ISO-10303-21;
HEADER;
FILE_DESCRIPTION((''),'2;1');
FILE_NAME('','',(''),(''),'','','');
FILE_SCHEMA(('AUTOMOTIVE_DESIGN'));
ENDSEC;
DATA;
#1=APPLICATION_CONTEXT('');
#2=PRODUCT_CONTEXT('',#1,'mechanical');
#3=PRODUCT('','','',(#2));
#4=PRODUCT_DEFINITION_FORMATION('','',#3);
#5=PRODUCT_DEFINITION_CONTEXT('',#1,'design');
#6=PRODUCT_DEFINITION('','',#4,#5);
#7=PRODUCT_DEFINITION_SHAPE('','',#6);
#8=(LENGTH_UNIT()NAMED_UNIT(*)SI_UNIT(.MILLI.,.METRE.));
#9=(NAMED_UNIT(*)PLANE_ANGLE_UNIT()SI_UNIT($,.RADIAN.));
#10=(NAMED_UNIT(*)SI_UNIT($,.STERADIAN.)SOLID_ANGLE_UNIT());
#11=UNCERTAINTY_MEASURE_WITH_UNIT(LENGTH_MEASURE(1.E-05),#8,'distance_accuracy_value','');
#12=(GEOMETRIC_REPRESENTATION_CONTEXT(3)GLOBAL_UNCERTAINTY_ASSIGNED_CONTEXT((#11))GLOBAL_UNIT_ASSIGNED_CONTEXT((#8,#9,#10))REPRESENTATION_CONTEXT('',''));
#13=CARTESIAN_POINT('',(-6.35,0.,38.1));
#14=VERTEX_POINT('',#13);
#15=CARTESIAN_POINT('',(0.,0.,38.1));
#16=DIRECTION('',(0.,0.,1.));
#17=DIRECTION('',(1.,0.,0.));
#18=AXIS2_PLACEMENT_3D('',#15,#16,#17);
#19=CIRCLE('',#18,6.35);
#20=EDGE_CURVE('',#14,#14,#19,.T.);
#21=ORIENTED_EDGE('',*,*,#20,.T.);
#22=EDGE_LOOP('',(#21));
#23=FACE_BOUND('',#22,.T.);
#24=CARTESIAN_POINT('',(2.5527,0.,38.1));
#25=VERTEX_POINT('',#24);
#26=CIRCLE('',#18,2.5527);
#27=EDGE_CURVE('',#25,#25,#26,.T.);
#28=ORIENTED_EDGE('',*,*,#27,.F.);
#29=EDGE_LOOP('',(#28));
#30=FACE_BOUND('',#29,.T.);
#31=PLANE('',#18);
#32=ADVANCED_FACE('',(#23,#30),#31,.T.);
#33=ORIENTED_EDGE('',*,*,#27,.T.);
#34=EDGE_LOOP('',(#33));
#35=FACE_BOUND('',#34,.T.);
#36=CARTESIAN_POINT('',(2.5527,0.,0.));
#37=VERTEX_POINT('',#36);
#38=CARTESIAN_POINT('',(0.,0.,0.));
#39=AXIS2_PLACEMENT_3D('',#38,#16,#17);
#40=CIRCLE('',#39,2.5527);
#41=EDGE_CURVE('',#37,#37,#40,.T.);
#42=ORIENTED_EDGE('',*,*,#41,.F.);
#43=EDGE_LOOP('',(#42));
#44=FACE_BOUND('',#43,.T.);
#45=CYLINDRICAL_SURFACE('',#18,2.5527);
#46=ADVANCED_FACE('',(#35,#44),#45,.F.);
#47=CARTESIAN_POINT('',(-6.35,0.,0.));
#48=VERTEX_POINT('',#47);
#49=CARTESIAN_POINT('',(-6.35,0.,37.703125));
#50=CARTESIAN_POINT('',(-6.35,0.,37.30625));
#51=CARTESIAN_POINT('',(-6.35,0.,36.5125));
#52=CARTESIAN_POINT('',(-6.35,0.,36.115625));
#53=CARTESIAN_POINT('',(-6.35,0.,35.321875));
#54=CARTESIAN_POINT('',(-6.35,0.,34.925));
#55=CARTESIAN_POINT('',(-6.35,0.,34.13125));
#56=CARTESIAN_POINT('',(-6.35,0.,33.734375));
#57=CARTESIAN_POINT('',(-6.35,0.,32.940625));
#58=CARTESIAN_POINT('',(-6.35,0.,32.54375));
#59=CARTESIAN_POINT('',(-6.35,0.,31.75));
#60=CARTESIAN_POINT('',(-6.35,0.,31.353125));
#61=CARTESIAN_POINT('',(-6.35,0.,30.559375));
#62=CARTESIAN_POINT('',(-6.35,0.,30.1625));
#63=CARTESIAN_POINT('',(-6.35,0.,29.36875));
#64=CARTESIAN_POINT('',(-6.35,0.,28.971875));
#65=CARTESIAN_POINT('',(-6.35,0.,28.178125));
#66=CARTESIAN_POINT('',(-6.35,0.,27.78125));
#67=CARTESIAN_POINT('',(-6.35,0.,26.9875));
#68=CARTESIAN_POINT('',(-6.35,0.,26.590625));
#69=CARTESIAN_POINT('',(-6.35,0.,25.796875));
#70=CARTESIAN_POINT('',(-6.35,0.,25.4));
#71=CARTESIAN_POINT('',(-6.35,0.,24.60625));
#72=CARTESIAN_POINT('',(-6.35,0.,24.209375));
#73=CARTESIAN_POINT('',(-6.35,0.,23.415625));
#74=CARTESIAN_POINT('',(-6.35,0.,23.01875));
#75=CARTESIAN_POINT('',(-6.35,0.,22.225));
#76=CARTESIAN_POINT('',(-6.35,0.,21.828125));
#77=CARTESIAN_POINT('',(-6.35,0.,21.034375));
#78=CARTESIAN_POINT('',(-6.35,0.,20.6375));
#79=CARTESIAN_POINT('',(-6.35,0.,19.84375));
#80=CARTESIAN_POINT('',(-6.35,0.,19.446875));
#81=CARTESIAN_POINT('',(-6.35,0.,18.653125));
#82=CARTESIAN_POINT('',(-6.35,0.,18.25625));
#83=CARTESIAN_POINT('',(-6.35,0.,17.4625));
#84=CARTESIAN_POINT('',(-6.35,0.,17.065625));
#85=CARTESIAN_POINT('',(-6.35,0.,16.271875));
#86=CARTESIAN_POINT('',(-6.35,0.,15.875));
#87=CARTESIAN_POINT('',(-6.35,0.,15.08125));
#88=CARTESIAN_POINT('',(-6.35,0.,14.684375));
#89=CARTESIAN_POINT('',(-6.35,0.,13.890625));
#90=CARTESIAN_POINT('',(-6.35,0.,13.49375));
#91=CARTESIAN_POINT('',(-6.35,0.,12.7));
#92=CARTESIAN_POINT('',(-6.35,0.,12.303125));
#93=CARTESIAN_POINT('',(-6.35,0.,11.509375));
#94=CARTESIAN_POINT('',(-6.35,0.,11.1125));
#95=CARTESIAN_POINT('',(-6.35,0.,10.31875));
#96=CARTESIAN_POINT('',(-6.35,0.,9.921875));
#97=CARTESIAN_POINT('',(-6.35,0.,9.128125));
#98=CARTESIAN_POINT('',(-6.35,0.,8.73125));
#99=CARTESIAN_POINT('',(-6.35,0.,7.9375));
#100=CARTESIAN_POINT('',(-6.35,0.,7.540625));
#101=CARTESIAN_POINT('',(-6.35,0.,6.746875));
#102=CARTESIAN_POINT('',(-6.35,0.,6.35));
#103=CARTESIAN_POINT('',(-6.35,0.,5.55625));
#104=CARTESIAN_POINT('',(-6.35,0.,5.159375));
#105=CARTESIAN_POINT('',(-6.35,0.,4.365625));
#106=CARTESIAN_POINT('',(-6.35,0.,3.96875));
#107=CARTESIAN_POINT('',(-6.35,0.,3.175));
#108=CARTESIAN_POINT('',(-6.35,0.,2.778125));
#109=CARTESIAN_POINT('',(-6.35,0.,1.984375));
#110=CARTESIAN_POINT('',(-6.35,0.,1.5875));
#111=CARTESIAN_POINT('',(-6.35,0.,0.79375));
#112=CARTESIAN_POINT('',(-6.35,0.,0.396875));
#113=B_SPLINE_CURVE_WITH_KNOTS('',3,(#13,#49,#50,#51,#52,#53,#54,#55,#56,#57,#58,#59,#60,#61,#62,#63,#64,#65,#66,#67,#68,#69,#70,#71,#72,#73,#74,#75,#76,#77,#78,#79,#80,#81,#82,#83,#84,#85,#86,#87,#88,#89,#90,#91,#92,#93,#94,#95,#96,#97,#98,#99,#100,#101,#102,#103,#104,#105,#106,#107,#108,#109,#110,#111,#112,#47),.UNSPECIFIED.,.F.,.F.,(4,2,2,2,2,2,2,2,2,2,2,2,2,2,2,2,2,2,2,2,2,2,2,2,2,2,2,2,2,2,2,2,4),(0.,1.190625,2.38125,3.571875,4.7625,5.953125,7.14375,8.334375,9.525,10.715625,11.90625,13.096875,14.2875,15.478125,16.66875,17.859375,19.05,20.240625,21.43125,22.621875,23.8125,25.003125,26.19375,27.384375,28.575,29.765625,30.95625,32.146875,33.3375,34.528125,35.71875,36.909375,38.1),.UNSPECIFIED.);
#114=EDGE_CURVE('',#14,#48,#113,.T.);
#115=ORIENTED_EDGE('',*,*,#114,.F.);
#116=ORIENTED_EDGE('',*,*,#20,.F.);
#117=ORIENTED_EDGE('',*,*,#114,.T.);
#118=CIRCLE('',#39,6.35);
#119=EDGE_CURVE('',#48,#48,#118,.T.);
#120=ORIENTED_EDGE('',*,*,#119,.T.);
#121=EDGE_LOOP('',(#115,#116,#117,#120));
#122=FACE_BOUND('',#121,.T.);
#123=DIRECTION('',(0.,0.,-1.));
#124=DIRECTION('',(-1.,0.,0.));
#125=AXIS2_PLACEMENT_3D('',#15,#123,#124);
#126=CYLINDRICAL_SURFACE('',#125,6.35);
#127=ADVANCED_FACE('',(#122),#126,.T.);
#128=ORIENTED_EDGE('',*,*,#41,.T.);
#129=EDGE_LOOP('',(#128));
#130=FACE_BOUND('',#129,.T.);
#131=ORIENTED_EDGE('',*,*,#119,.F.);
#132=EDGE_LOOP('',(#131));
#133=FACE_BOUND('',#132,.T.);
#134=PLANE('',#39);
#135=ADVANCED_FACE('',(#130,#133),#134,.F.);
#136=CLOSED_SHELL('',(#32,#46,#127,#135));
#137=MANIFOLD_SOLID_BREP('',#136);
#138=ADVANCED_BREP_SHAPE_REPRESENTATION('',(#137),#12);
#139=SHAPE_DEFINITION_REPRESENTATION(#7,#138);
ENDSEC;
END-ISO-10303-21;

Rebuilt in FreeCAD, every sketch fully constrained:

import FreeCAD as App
import Part
import Sketcher
Q = App.Units.Quantity

doc = App.newDocument("Part")
params = doc.addObject("Spreadsheet::Sheet", "Params")
for row, (alias, value) in enumerate([
    ("sketch1_diameter", "0.5 in"),
    ("pad1_length", "1.5 in"),
    ("sketch2_diameter", "0.201 in"),
    ("hole_diameter", "0.201 in"),
    ("hole_depth", "22.596183 mm"),
    ("sketch3_diameter", "0.201 in"),
], start=1):
    params.set(f"A{row}", alias)
    params.set(f"B{row}", "=" + value)
    params.setAlias(f"B{row}", alias)

body = doc.addObject("PartDesign::Body", "Body")

sketch1 = body.newObject("Sketcher::SketchObject", "Sketch")
sketch1.AttachmentSupport = (doc.getObject("XY_Plane"), [""])
sketch1.MapMode = "FlatFace"
sketch1.addGeometry(Part.Circle(App.Vector(0, 0, 0), App.Vector(0, 0, 1), 6), False)
sketch1.addConstraint([
    Sketcher.Constraint("Coincident", 0, 3, -1, 1),
    Sketcher.Constraint("Diameter", 0, Q("0.5 in")),
])
sketch1.setExpression("Constraints[1]", "Params.sketch1_diameter")
pad1 = body.newObject("PartDesign::Pad", "Pad")
pad1.Profile = sketch1
pad1.setExpression("Length", "Params.pad1_length")

sketch2 = body.newObject("Sketcher::SketchObject", "Sketch001")
sketch2.AttachmentSupport = (doc.getObject("XY_Plane"), [""])
sketch2.MapMode = "FlatFace"
sketch2.AttachmentOffset = App.Placement(App.Vector(0, 0, 1.5 * 25.4), App.Rotation())
sketch2.addGeometry(Part.Circle(App.Vector(0, 0, 0), App.Vector(0, 0, 1), 2.6), False)
sketch2.addConstraint([
    Sketcher.Constraint("Coincident", 0, 3, -1, 1),
    Sketcher.Constraint("Diameter", 0, Q("0.201 in")),
])
sketch2.setExpression("Constraints[1]", "Params.sketch2_diameter")
doc.recompute()
hole = body.newObject("PartDesign::Hole", "Hole")
hole.Profile = sketch2
hole.ThreadType = "None"
hole.setExpression("Diameter", "Params.hole_diameter")
hole.DepthType = "Dimension"
hole.setExpression("Depth", "Params.hole_depth")
hole.DrillPoint = "Angled"
hole.DrillPointAngle = 118

sketch3 = body.newObject("Sketcher::SketchObject", "Sketch002")
sketch3.AttachmentSupport = (doc.getObject("XY_Plane"), [""])
sketch3.MapMode = "FlatFace"
sketch3.AttachmentOffset = App.Placement(App.Vector(0, 0, 1.5 * 25.4), App.Rotation())
sketch3.addGeometry(Part.Circle(App.Vector(0, 0, 0), App.Vector(0, 0, 1), 2.6), False)
sketch3.addConstraint([
    Sketcher.Constraint("Coincident", 0, 3, -1, 1),
    Sketcher.Constraint("Diameter", 0, Q("0.201 in")),
])
sketch3.setExpression("Constraints[1]", "Params.sketch3_diameter")
pocket1 = body.newObject("PartDesign::Pocket", "Pocket")
pocket1.Profile = sketch3
pocket1.Type = "ThroughAll"

doc.recompute()
